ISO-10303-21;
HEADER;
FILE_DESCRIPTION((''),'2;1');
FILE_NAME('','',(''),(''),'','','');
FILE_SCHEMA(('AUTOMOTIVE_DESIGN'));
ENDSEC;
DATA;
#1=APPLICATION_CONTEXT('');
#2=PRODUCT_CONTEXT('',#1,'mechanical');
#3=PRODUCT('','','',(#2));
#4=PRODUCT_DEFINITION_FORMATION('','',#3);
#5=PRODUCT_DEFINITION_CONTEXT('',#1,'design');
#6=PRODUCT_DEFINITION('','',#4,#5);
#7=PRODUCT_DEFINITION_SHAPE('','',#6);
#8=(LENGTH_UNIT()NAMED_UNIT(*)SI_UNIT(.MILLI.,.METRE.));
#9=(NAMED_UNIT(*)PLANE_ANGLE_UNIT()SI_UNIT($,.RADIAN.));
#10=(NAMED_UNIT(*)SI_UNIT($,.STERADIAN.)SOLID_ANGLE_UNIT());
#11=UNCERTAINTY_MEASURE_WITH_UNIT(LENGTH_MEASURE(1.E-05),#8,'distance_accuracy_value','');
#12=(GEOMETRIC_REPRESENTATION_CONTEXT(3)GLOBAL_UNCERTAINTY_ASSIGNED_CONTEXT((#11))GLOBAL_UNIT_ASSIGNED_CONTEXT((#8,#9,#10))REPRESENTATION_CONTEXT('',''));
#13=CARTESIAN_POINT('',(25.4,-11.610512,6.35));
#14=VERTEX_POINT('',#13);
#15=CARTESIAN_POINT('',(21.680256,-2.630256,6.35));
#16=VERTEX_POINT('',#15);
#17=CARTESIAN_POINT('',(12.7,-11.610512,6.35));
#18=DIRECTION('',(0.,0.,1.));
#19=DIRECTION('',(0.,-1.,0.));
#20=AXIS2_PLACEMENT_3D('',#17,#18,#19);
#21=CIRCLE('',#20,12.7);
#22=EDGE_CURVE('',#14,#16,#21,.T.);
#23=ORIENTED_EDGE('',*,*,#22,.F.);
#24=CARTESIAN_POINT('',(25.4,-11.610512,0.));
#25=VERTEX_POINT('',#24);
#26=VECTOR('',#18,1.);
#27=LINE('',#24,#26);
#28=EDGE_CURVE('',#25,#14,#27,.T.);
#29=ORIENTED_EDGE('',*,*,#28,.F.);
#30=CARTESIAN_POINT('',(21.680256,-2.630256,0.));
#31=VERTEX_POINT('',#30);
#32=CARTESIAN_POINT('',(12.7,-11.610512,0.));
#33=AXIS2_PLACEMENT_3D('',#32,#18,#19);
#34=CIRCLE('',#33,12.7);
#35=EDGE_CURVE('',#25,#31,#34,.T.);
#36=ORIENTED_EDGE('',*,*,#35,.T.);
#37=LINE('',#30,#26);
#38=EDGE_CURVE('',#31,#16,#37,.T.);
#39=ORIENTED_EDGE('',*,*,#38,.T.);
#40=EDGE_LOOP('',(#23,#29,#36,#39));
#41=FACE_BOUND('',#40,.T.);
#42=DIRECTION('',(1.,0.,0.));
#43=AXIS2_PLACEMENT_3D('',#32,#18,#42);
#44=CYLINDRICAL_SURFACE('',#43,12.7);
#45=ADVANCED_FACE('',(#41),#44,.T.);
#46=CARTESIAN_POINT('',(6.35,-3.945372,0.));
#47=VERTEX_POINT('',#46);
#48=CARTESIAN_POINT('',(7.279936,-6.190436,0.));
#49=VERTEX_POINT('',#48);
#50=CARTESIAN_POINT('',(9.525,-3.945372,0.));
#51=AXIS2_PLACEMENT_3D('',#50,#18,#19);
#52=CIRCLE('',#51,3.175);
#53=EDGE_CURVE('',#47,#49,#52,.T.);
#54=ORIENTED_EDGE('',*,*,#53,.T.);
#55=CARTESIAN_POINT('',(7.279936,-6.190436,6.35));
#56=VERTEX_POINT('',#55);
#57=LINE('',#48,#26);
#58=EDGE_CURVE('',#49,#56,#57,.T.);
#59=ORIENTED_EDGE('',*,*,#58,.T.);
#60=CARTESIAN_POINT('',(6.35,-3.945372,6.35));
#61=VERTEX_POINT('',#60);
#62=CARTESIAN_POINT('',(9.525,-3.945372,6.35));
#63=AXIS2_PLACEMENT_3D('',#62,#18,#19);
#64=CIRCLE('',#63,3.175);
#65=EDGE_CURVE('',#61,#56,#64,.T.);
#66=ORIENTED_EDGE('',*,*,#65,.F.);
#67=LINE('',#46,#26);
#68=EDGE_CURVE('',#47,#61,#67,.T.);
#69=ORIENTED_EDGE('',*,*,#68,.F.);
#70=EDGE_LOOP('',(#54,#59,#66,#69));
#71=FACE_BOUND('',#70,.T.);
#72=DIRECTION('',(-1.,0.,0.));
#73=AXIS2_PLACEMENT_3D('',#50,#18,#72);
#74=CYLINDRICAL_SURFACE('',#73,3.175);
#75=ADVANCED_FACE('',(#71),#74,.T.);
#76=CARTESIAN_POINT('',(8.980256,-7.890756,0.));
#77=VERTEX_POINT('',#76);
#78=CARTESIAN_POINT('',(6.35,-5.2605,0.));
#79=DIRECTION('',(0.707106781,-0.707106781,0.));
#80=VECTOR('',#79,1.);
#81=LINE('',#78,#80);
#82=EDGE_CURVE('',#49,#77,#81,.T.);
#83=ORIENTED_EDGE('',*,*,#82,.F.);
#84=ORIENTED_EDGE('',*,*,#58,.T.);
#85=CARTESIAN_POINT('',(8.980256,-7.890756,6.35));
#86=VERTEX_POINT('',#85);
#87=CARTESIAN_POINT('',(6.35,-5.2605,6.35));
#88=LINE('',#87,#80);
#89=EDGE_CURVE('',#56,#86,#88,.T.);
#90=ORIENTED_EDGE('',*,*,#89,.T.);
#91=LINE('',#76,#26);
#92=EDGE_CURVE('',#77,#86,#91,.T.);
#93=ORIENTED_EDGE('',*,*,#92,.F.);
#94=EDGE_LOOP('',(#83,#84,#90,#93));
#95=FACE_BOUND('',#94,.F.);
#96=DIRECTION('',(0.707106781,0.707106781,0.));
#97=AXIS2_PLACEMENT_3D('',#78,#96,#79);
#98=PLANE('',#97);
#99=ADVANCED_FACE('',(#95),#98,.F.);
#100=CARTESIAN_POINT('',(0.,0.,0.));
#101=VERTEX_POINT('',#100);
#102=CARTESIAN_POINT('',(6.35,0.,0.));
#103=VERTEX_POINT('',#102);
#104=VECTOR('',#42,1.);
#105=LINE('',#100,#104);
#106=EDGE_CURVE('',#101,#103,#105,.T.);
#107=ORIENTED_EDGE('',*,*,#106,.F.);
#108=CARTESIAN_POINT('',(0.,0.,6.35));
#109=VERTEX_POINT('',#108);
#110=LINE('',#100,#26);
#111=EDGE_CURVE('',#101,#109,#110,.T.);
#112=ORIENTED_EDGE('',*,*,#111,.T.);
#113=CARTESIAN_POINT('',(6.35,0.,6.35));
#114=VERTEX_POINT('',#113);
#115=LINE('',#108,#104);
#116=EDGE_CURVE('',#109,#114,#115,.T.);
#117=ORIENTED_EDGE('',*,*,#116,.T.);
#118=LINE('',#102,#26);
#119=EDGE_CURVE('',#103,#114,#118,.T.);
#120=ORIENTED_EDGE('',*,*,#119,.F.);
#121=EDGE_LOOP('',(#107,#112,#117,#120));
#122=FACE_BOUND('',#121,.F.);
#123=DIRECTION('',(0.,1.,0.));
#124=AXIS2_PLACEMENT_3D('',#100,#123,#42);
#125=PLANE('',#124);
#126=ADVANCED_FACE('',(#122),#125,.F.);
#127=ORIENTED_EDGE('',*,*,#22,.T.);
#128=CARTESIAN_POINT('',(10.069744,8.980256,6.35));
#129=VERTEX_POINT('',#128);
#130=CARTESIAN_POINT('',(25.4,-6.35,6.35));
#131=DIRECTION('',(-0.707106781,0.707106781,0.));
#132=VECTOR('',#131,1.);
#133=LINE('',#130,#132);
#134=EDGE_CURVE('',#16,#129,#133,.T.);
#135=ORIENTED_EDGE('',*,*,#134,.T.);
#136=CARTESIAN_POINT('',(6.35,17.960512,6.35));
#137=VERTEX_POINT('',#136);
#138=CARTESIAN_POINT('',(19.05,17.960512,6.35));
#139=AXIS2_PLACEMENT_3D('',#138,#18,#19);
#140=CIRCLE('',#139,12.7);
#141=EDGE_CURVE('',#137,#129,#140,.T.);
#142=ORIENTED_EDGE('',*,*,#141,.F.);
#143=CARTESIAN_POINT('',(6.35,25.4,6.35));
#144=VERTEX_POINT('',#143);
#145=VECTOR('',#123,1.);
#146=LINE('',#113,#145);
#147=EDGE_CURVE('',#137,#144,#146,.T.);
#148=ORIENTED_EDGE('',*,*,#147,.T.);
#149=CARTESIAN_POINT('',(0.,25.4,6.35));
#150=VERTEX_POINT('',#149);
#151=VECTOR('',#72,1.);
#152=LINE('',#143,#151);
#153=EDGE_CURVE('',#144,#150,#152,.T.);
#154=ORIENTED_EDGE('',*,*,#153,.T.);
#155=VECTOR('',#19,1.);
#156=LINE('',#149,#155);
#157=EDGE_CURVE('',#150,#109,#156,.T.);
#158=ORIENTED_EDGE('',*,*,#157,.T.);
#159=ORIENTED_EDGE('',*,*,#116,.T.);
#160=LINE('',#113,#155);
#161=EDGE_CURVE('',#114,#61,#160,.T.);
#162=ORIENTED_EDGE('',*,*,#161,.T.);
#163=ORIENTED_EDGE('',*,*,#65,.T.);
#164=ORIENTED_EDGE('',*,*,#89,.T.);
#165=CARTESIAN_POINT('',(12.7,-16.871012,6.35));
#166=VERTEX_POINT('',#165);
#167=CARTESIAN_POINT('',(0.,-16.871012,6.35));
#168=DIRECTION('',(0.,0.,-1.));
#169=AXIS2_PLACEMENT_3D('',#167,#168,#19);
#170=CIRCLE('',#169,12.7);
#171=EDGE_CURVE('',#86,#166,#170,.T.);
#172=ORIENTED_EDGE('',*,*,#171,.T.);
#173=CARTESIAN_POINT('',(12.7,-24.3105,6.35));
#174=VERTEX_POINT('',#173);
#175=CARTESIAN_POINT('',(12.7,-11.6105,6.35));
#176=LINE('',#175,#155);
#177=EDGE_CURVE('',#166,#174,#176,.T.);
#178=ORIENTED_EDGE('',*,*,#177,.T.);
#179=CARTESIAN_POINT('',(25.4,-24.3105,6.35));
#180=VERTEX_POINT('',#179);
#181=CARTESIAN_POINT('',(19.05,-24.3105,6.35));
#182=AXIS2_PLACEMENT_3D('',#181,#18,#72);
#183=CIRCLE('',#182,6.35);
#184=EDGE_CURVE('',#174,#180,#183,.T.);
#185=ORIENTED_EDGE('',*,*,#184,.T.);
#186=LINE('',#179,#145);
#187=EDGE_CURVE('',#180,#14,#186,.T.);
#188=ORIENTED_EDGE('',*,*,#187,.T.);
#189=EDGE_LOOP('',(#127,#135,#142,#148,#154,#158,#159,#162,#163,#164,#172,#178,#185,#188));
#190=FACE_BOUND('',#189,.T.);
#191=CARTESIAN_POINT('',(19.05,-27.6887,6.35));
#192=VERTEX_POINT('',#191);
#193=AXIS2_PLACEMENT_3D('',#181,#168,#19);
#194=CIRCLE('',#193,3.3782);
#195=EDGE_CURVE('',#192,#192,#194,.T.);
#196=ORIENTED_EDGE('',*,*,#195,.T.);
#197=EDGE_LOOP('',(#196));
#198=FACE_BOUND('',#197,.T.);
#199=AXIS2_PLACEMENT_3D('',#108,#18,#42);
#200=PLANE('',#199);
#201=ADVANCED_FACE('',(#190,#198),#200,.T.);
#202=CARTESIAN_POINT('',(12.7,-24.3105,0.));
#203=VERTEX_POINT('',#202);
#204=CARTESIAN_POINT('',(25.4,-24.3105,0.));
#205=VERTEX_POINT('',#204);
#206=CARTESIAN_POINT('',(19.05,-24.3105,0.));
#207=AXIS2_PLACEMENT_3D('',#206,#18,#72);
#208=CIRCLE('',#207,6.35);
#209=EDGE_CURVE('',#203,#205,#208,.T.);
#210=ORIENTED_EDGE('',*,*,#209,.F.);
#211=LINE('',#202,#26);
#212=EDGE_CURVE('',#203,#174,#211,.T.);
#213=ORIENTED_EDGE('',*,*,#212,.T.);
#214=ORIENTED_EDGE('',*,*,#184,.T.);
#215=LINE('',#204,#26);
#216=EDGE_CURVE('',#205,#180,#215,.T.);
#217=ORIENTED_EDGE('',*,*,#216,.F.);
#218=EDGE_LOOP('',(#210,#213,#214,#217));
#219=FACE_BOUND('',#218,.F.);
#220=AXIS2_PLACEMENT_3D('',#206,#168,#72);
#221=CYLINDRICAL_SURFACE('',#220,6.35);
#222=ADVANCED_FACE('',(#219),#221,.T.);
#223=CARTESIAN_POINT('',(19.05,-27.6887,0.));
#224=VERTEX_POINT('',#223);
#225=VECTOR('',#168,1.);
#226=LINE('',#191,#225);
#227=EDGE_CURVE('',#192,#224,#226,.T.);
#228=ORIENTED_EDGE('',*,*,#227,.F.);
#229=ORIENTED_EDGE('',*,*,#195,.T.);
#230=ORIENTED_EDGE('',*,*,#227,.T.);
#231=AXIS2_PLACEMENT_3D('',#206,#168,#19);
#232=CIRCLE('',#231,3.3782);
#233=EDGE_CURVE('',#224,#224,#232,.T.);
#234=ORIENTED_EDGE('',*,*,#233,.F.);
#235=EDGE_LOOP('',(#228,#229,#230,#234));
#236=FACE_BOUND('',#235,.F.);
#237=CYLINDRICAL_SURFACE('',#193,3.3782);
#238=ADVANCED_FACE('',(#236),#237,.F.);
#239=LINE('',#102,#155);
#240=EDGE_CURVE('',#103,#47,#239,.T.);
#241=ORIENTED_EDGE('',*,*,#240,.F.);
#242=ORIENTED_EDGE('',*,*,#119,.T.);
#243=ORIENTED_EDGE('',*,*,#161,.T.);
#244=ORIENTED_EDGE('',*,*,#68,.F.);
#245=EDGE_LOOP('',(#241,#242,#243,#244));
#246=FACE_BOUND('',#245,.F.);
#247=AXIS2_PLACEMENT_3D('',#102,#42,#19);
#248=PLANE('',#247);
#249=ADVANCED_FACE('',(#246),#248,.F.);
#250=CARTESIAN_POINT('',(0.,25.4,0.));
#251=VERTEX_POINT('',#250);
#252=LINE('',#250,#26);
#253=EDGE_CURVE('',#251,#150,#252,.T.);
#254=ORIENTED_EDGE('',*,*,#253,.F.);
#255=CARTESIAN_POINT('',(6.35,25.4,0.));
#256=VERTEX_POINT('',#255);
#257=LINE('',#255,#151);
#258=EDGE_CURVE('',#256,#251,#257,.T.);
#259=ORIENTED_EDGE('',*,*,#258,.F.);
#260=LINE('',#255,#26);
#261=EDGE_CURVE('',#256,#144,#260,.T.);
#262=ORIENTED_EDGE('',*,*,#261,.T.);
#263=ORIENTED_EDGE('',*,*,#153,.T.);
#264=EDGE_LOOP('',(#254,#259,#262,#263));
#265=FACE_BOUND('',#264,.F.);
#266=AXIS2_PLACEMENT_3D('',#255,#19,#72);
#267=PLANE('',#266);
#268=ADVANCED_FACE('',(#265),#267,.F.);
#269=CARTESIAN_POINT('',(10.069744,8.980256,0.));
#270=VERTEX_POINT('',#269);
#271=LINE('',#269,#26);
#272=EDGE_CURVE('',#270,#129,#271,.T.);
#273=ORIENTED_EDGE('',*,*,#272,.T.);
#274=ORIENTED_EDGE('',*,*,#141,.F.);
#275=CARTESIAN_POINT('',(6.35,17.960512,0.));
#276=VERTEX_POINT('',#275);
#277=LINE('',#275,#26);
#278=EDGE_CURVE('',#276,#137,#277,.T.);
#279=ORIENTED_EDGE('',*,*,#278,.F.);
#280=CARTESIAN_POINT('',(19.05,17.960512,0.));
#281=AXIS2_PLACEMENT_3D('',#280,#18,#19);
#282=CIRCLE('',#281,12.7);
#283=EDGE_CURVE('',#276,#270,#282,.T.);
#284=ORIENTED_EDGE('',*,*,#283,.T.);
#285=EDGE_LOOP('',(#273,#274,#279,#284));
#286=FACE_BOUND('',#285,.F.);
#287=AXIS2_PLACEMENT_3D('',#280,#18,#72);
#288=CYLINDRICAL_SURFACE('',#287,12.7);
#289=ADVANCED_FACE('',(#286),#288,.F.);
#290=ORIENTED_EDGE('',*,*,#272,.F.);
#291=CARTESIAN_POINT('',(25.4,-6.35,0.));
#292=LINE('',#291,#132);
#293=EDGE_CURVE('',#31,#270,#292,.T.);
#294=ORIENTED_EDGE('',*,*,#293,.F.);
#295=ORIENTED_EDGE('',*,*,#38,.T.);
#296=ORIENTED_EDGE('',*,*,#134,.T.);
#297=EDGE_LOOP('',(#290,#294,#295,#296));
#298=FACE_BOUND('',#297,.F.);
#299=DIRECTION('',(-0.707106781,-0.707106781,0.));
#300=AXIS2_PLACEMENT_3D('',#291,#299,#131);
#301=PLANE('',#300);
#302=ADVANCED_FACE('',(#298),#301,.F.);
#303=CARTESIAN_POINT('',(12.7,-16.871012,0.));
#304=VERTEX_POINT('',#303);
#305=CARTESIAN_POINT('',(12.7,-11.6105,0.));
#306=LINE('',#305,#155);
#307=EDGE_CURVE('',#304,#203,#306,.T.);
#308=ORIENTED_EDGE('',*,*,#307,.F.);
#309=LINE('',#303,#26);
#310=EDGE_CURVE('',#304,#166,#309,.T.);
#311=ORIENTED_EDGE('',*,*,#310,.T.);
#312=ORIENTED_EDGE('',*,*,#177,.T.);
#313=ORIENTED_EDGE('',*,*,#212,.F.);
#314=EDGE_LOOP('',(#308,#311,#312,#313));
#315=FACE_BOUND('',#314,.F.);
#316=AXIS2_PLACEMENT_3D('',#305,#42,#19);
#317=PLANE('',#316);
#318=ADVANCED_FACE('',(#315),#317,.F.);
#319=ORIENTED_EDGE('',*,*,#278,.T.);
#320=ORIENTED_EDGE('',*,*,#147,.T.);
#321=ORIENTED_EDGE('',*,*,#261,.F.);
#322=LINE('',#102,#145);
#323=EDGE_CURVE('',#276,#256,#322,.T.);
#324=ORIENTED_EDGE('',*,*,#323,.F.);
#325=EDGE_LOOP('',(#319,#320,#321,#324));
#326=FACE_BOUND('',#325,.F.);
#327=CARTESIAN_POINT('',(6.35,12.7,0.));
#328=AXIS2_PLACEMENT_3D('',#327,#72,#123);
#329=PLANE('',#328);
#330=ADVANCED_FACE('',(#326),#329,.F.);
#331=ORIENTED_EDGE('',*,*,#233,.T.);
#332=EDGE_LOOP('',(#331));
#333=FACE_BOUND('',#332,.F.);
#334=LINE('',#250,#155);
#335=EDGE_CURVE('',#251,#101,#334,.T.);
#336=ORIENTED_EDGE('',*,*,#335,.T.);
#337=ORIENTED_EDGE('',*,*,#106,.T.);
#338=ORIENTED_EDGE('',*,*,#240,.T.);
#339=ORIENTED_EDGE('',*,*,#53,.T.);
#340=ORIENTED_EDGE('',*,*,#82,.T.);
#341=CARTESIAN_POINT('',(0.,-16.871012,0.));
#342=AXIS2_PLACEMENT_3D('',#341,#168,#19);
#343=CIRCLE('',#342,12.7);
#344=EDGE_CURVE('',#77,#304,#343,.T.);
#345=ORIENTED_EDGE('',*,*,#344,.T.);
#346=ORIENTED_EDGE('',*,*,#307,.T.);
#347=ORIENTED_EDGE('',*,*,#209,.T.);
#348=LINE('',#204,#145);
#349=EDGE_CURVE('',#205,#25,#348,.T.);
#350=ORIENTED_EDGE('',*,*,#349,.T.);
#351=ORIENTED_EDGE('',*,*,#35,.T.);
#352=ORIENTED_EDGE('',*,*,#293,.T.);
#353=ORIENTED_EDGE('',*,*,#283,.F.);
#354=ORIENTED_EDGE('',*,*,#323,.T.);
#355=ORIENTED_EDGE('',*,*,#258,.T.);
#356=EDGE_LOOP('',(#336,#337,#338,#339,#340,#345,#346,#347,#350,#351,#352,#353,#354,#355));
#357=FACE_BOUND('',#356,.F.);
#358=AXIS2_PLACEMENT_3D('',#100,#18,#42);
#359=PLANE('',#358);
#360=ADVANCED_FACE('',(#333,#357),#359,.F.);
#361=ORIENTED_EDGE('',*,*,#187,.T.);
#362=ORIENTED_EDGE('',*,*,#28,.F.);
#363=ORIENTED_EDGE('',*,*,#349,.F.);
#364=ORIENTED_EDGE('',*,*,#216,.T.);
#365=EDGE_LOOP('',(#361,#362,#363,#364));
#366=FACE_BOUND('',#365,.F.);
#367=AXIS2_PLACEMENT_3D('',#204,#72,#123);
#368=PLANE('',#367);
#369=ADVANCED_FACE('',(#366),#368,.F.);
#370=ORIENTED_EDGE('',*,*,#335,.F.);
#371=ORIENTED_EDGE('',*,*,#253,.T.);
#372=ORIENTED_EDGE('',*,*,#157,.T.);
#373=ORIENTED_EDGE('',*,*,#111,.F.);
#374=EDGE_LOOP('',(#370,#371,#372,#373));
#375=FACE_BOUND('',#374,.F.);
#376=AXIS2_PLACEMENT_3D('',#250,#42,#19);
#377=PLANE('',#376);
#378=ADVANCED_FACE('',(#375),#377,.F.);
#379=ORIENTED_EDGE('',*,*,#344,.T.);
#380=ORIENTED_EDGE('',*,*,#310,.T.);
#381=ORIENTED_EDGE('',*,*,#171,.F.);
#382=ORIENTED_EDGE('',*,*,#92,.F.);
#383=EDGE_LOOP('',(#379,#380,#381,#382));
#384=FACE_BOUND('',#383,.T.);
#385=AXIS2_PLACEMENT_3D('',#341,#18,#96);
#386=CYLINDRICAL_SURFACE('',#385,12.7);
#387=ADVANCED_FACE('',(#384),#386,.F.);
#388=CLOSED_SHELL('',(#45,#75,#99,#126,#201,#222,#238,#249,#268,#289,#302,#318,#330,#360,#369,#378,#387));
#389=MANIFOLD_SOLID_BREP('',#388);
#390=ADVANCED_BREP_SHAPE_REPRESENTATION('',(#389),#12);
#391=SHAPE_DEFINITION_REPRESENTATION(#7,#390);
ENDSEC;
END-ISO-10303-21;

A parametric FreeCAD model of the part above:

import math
import FreeCAD as App
import Part
import Sketcher

V = App.Vector
Q = App.Units.Quantity


def edges_at(feature, points):
    """Names of the edges that pass closest to the given points."""
    edges = feature.Shape.Edges
    near = lambda p: min(range(len(edges)), key=lambda i: edges[i].distToShape(Part.Vertex(*p))[0])
    return sorted({f"Edge{near(p) + 1}" for p in points})

doc = App.newDocument("Part")
body = doc.addObject("PartDesign::Body", "Body")

sketch1 = body.newObject("Sketcher::SketchObject", "Sketch")
sketch1.AttachmentSupport = (doc.getObject("XY_Plane"), [""])
sketch1.MapMode = "FlatFace"
sketch1.addGeometry(Part.LineSegment(V(0, 25.4, 0), V(0, 0, 0)), False)
sketch1.addGeometry(Part.LineSegment(V(0, 0, 0), V(6.35, 0, 0)), False)
sketch1.addGeometry(Part.LineSegment(V(6.35, 0, 0), V(6.35, -5.2605, 0)), False)
sketch1.addGeometry(Part.LineSegment(V(6.35, -5.2605, 0), V(12.7, -11.6105, 0)), False)
sketch1.addGeometry(Part.LineSegment(V(12.7, -11.6105, 0), V(12.7, -24.3105, 0)), False)
sketch1.addGeometry(Part.ArcOfCircle(Part.Circle(V(19.05, -24.3105, 0), V(0, 0, 1), 6.35), math.radians(180), math.radians(360)), False)
sketch1.addGeometry(Part.LineSegment(V(25.4, -24.3105, 0), V(25.4, -6.35, 0)), False)
sketch1.addGeometry(Part.LineSegment(V(25.4, -6.35, 0), V(6.35, 12.7, 0)), False)
sketch1.addGeometry(Part.LineSegment(V(6.35, 12.7, 0), V(6.35, 25.4, 0)), False)
sketch1.addGeometry(Part.LineSegment(V(6.35, 25.4, 0), V(0, 25.4, 0)), False)
sketch1.addConstraint(Sketcher.Constraint("Coincident", 0, 2, 1, 1))
sketch1.addConstraint(Sketcher.Constraint("Coincident", 1, 2, 2, 1))
sketch1.addConstraint(Sketcher.Constraint("Coincident", 2, 2, 3, 1))
sketch1.addConstraint(Sketcher.Constraint("Coincident", 3, 2, 4, 1))
sketch1.addConstraint(Sketcher.Constraint("Tangent", 4, 2, 5, 1))
sketch1.addConstraint(Sketcher.Constraint("Tangent", 5, 2, 6, 1))
sketch1.addConstraint(Sketcher.Constraint("Coincident", 6, 2, 7, 1))
sketch1.addConstraint(Sketcher.Constraint("Coincident", 7, 2, 8, 1))
sketch1.addConstraint(Sketcher.Constraint("Coincident", 8, 2, 9, 1))
sketch1.addConstraint(Sketcher.Constraint("Coincident", 9, 2, 0, 1))
sketch1.addConstraint(Sketcher.Constraint("Vertical", 0))
sketch1.addConstraint(Sketcher.Constraint("Horizontal", 1))
sketch1.addConstraint(Sketcher.Constraint("Vertical", 2))
sketch1.addConstraint(Sketcher.Constraint("Vertical", 4))
sketch1.addConstraint(Sketcher.Constraint("Vertical", 6))
sketch1.addConstraint(Sketcher.Constraint("Vertical", 8))
sketch1.addConstraint(Sketcher.Constraint("Horizontal", 9))
sketch1.addConstraint(Sketcher.Constraint("Coincident", 0, 2, -1, 1))
sketch1.addConstraint(Sketcher.Constraint("Parallel", 3, 7))
sketch1.addConstraint(Sketcher.Constraint("Vertical", 2, 2, 7, 2))
sketch1.addConstraint(Sketcher.Constraint("Equal", 4, 8))
sketch1.addConstraint(Sketcher.Constraint("DistanceY", 0, 2, 0, 1, Q("1 in")))
sketch1.addConstraint(Sketcher.Constraint("Radius", 5, Q("0.25 in")))
sketch1.addConstraint(Sketcher.Constraint("DistanceY", 4, 2, 4, 1, Q("0.5 in")))
sketch1.addConstraint(Sketcher.Constraint("DistanceX", -1, 1, 5, 2, Q("1 in")))
sketch1.addConstraint(Sketcher.Constraint("Angle", 3, Q("-45 deg")))
sketch1.addConstraint(Sketcher.Constraint("DistanceX", 1, 1, 1, 2, Q("0.25 in")))
sketch1.addConstraint(Sketcher.Constraint("DistanceY", 2, 2, 2, 1, Q("0.2071 in")))
pad1 = body.newObject("PartDesign::Pad", "Pad")
pad1.Profile = sketch1
pad1.Length = Q("0.25 in")
doc.recompute()

fillet = body.newObject("PartDesign::Fillet", "Fillet")
fillet.Base = (pad1, edges_at(pad1, [(6.35, -5.261, 3.175)]))
fillet.Radius = Q("0.125 in")
doc.recompute()

fillet2 = body.newObject("PartDesign::Fillet", "Fillet001")
fillet2.Base = (fillet, edges_at(fillet, [(12.7, -11.611, 3.175), (25.4, -6.35, 3.175), (6.35, 12.7, 3.175)]))
fillet2.Radius = Q("0.5 in")

sketch2 = body.newObject("Sketcher::SketchObject", "Sketch001")
sketch2.AttachmentSupport = (doc.getObject("XY_Plane"), [""])
sketch2.MapMode = "FlatFace"
sketch2.AttachmentOffset = App.Placement(V(0, 0, 0.25 * 25.4), App.Rotation())
sketch2.addGeometry(Part.Circle(V(19.05, -24.3105, 0), V(0, 0, 1), 3.3782), False)
sketch2.addConstraint(Sketcher.Constraint("Diameter", 0, Q("0.266 in")))
sketch2.addConstraint(Sketcher.Constraint("DistanceX", -1, 1, 0, 3, Q("0.75 in")))
sketch2.addConstraint(Sketcher.Constraint("DistanceY", 0, 3, -1, 1, Q("0.9571 in")))
doc.recompute()
hole = body.newObject("PartDesign::Hole", "Hole")
hole.Profile = sketch2
hole.ThreadType = "None"
hole.Diameter = Q("0.266 in")
hole.DepthType = "ThroughAll"

doc.recompute()
